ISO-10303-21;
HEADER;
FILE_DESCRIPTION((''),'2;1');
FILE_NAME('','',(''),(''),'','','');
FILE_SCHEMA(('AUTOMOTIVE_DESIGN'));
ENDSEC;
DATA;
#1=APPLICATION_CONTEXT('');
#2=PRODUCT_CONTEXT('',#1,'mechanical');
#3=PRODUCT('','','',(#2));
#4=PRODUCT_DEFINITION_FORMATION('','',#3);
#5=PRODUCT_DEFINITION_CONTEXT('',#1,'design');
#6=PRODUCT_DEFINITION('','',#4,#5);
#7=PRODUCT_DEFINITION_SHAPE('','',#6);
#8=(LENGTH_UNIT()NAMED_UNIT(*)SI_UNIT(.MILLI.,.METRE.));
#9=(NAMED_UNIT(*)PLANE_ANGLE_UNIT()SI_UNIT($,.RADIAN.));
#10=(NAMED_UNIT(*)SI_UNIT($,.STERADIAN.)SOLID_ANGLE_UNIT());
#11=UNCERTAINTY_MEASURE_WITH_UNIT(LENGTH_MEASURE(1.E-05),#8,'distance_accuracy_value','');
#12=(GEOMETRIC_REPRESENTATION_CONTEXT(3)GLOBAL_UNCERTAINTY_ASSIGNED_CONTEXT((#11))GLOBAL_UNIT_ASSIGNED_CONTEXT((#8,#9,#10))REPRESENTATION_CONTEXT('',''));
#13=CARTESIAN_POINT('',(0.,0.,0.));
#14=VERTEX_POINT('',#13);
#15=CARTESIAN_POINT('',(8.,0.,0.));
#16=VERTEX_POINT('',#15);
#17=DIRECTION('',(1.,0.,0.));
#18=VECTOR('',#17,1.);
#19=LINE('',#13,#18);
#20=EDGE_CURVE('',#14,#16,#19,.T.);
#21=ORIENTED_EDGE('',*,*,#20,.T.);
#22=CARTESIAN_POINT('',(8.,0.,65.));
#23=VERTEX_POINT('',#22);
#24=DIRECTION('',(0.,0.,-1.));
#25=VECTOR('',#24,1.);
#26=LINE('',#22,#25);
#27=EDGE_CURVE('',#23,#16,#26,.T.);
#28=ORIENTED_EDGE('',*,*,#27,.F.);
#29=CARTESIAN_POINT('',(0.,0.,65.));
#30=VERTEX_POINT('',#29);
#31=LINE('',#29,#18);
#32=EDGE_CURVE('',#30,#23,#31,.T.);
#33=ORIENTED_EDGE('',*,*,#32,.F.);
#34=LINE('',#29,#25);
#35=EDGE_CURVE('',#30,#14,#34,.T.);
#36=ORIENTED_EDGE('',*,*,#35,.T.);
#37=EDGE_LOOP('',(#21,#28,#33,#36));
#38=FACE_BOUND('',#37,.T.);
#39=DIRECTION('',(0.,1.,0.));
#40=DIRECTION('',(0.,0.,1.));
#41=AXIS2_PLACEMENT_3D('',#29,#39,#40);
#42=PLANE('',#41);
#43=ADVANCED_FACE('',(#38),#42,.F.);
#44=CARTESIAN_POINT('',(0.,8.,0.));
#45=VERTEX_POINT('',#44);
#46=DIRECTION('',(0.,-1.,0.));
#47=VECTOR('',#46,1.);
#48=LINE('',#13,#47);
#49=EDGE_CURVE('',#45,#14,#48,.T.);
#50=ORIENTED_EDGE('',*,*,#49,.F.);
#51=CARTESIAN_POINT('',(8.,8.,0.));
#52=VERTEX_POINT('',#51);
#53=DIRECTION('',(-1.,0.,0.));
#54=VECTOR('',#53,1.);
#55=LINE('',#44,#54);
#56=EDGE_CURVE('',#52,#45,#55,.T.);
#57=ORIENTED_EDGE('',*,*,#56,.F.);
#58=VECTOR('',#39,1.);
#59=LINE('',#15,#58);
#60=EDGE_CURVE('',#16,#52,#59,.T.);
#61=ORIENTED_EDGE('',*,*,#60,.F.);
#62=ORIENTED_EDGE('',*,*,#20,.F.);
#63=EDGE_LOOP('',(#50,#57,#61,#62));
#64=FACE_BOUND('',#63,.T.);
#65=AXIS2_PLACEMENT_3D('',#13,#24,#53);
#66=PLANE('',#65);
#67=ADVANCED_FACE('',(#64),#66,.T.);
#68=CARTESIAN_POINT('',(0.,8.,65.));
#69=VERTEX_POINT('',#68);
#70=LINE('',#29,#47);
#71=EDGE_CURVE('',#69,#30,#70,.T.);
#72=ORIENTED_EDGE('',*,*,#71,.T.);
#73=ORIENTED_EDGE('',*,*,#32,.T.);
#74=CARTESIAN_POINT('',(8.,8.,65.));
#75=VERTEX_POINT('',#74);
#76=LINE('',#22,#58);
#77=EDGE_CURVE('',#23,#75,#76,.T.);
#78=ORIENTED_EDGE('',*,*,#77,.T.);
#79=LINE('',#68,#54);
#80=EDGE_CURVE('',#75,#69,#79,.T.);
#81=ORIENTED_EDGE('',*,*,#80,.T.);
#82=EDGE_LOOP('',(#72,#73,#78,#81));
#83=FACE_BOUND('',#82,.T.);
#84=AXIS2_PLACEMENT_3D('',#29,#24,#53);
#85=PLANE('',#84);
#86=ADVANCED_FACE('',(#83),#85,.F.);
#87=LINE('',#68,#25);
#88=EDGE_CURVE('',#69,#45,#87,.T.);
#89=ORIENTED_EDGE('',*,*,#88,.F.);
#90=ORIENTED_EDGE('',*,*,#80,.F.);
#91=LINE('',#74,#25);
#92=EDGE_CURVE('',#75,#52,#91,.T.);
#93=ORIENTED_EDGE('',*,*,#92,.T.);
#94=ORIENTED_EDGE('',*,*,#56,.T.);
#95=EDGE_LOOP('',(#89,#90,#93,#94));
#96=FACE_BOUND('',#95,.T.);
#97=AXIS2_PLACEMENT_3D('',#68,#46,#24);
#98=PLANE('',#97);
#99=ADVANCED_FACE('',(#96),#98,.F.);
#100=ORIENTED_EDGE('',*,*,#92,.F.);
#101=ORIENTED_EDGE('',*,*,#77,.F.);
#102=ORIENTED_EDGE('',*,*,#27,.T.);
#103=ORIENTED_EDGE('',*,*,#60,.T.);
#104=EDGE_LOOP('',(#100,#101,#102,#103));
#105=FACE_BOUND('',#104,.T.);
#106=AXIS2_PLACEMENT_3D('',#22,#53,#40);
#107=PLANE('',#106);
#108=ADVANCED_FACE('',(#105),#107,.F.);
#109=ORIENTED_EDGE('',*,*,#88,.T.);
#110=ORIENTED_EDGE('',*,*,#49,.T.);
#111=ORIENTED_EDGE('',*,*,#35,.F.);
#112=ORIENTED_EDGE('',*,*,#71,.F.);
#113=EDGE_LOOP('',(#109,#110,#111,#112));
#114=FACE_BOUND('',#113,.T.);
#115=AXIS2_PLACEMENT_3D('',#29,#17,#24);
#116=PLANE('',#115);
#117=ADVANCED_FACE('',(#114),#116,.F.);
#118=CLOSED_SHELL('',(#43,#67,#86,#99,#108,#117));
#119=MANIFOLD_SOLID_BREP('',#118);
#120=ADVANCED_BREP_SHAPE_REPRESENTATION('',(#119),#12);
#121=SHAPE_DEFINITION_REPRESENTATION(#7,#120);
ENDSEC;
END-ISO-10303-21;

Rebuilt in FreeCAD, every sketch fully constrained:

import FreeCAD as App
import Part
import Sketcher
from FreeCAD import Vector
Q = App.Units.Quantity

doc = App.newDocument("Part")
body = doc.addObject("PartDesign::Body", "Body")

sketch1 = body.newObject("Sketcher::SketchObject", "Sketch")
sketch1.AttachmentSupport = (doc.getObject("XY_Plane"), [""])
sketch1.MapMode = "FlatFace"
sketch1.addGeometry(Part.LineSegment(Vector(0, 8, 0), Vector(0, 0, 0)), False)
sketch1.addGeometry(Part.LineSegment(Vector(0, 0, 0), Vector(8, 0, 0)), False)
sketch1.addGeometry(Part.LineSegment(Vector(8, 0, 0), Vector(8, 8, 0)), False)
sketch1.addGeometry(Part.LineSegment(Vector(8, 8, 0), Vector(0, 8, 0)), False)
sketch1.addConstraint(Sketcher.Constraint("Coincident", 0, 2, 1, 1))
sketch1.addConstraint(Sketcher.Constraint("Coincident", 1, 2, 2, 1))
sketch1.addConstraint(Sketcher.Constraint("Coincident", 2, 2, 3, 1))
sketch1.addConstraint(Sketcher.Constraint("Coincident", 3, 2, 0, 1))
sketch1.addConstraint(Sketcher.Constraint("Vertical", 0))
sketch1.addConstraint(Sketcher.Constraint("Horizontal", 1))
sketch1.addConstraint(Sketcher.Constraint("Vertical", 2))
sketch1.addConstraint(Sketcher.Constraint("Horizontal", 3))
sketch1.addConstraint(Sketcher.Constraint("Coincident", 0, 2, -1, 1))
sketch1.addConstraint(Sketcher.Constraint("Equal", 3, 0))
sketch1.addConstraint(Sketcher.Constraint("DistanceX", 1, 1, 1, 2, Q("8 mm")))
pad1 = body.newObject("PartDesign::Pad", "Pad")
pad1.Profile = sketch1
pad1.Length = 65

doc.recompute()
